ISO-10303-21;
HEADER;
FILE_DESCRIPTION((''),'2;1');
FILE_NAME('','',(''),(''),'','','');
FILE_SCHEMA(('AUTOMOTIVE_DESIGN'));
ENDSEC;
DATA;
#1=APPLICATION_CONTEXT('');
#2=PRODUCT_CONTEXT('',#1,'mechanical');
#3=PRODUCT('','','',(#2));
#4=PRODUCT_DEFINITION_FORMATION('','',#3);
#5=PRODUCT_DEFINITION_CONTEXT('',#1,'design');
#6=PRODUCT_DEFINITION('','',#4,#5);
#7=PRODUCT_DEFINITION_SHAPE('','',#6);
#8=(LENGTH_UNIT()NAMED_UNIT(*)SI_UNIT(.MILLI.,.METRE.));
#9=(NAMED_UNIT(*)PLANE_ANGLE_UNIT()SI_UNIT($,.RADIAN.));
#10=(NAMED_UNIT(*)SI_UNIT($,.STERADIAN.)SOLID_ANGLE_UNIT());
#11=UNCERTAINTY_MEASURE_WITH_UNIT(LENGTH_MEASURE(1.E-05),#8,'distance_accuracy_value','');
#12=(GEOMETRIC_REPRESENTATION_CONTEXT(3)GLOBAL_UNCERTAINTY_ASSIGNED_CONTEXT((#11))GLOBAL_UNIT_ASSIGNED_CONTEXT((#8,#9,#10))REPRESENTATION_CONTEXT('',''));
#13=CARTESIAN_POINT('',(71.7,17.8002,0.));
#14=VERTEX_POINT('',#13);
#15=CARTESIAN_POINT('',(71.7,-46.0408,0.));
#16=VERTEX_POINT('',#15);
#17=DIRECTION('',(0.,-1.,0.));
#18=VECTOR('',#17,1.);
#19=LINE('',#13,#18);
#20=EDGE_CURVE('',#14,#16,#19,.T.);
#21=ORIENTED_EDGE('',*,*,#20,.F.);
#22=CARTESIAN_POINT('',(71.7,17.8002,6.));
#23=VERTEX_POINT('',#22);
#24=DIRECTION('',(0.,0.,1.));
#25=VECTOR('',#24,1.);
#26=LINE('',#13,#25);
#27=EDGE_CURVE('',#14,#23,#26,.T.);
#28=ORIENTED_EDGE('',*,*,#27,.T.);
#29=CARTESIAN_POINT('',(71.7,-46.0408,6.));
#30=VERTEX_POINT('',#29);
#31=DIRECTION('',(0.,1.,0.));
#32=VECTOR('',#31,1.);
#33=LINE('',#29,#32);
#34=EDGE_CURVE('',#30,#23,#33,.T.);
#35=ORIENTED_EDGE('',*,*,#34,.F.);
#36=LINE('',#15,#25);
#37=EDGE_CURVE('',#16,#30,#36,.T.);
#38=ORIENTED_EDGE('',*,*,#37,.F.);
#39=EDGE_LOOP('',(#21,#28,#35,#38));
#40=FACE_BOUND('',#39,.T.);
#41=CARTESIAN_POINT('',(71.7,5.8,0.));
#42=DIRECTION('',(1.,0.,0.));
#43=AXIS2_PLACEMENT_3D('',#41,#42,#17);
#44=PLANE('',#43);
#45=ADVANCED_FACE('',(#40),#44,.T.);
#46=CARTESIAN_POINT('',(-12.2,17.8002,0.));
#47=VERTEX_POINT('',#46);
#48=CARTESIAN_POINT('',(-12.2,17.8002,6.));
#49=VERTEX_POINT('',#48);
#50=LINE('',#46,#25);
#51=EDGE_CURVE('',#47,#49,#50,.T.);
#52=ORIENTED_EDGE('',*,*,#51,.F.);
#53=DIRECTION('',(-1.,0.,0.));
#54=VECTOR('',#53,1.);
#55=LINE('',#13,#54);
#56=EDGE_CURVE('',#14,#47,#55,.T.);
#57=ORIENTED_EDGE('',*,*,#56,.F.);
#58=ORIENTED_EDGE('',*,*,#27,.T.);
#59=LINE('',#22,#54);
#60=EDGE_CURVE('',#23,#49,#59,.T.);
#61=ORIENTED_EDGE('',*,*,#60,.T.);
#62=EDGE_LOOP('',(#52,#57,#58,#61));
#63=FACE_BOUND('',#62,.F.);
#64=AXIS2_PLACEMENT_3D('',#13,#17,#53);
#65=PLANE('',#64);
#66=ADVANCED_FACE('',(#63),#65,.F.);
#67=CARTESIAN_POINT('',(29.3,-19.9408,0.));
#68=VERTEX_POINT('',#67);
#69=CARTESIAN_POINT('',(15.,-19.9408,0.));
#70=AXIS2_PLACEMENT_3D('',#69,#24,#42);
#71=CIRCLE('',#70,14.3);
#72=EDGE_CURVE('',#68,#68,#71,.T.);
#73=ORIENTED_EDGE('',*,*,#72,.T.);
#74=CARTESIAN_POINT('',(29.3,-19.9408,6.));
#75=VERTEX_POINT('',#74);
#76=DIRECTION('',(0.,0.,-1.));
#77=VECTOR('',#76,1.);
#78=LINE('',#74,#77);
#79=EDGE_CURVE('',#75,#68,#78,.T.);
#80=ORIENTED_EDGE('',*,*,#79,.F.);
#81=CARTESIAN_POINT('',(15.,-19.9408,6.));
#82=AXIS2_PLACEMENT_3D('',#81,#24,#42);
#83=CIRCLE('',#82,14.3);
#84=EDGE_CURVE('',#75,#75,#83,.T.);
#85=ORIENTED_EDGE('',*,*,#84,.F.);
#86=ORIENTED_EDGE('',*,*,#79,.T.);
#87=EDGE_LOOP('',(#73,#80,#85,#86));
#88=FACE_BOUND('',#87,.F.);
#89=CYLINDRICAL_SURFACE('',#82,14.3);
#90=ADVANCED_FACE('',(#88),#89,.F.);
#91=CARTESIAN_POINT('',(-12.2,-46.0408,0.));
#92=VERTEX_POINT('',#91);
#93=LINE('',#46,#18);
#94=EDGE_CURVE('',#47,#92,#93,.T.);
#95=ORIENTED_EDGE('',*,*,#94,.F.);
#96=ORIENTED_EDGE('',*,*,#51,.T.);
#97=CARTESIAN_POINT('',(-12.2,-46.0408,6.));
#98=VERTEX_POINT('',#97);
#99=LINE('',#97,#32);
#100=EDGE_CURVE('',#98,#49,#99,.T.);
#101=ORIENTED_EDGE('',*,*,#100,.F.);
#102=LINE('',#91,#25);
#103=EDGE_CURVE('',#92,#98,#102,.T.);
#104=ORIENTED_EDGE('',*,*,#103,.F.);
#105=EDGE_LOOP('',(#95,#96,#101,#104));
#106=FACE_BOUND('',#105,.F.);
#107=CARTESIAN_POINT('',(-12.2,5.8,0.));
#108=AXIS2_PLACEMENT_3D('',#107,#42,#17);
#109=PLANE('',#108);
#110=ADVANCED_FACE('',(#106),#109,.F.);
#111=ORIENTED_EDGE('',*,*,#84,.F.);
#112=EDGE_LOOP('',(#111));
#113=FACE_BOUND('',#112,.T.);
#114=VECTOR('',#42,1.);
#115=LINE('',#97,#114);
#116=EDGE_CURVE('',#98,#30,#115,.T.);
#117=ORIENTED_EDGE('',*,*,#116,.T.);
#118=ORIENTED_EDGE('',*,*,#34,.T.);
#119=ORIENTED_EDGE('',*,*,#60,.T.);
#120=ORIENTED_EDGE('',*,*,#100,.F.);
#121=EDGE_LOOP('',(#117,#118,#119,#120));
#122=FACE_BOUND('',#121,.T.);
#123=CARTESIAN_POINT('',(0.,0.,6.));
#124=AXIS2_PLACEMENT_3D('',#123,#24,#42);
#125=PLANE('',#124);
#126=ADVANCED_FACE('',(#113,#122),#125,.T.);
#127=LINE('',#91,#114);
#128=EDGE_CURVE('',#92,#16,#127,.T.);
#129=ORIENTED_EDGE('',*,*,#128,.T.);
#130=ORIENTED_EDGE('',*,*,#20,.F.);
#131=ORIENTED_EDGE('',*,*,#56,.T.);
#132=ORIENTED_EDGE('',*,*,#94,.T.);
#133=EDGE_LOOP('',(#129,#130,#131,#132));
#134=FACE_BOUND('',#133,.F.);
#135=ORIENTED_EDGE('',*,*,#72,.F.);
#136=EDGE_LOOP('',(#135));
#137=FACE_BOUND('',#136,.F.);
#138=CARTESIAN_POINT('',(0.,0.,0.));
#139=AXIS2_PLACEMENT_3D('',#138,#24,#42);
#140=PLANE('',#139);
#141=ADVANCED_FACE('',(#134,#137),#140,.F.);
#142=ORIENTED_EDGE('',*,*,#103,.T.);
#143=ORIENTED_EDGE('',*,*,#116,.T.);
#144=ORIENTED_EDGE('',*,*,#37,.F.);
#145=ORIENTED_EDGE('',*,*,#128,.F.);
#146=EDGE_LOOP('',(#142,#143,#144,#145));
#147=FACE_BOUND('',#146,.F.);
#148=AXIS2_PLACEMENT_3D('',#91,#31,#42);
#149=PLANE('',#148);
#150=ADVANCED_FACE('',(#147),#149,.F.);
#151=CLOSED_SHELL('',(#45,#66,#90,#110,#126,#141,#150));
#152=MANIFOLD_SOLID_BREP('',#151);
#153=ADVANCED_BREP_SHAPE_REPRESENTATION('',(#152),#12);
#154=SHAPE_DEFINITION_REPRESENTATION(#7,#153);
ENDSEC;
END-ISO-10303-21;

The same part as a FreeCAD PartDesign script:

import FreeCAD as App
import Part
import Sketcher
from FreeCAD import Vector
Q = App.Units.Quantity


def add_polygon(sketch, points):
    """Adds a closed chain of lines whose ends are joined by coincident constraints."""
    first, n = sketch.GeometryCount, len(points)
    for a, b in zip(points, points[1:] + points[:1]):
        sketch.addGeometry(Part.LineSegment(App.Vector(*a, 0), App.Vector(*b, 0)), False)
    for i in range(n):
        sketch.addConstraint(Sketcher.Constraint("Coincident", first + i, 2, first + (i + 1) % n, 1))

doc = App.newDocument("Part")
params = doc.addObject("Spreadsheet::Sheet", "Params")
for row, (alias, value) in enumerate([
    ("sketch1_width", "83.9 mm"),
    ("pad1_length", "6 mm"),
    ("sketch2_diameter", "28.6 mm"),
    ("pocket1_length", "6 mm"),
], start=1):
    params.set(f"A{row}", alias)
    params.set(f"B{row}", "=" + value)
    params.setAlias(f"B{row}", alias)

body = doc.addObject("PartDesign::Body", "Body")

# Sketch on XY plane
sketch1 = body.newObject("Sketcher::SketchObject", "Sketch")
sketch1.AttachmentSupport = (doc.getObject("XY_Plane"), [""])
sketch1.MapMode = "FlatFace"
add_polygon(sketch1, [(-12.2, -46.0408), (71.7, -46.0408), (71.7, 17.8002), (-12.2, 17.8002)])  # lines 0-3
sketch1.addConstraint([
    Sketcher.Constraint("Horizontal", 0),
    Sketcher.Constraint("Vertical", 1),
    Sketcher.Constraint("Horizontal", 2),
    Sketcher.Constraint("Vertical", 3),
    Sketcher.Constraint("DistanceY", 1, 1, 1, 2, Q("63.841 mm")),
    Sketcher.Constraint("DistanceX", 0, 1, 0, 2, Q("83.9 mm")),
    Sketcher.Constraint("DistanceX", -1, 1, 0, 2, Q("71.7 mm")),
    Sketcher.Constraint("DistanceY", 0, 2, -1, 1, Q("46.0408 mm")),
])
sketch1.setExpression("Constraints[9]", "Params.sketch1_width")
pad1 = body.newObject("PartDesign::Pad", "Pad")
pad1.Profile = sketch1
pad1.setExpression("Length", "Params.pad1_length")

# Sketch on XY plane
sketch2 = body.newObject("Sketcher::SketchObject", "Sketch001")
sketch2.AttachmentSupport = (doc.getObject("XY_Plane"), [""])
sketch2.MapMode = "FlatFace"
sketch2.AttachmentOffset = App.Placement(Vector(0, 0, 6), App.Rotation())
sketch2.addGeometry(Part.Circle(Vector(15, -19.9408, 0), Vector(0, 0, 1), 14.3), False)
sketch2.addConstraint([
    Sketcher.Constraint("Diameter", 0, Q("28.6 mm")),
    Sketcher.Constraint("DistanceX", -1, 1, 0, 3, Q("15 mm")),
    Sketcher.Constraint("DistanceY", 0, 3, -1, 1, Q("19.9408 mm")),
])
sketch2.setExpression("Constraints[0]", "Params.sketch2_diameter")
pocket1 = body.newObject("PartDesign::Pocket", "Pocket")
pocket1.Profile = sketch2
pocket1.setExpression("Length", "Params.pocket1_length")

doc.recompute()
